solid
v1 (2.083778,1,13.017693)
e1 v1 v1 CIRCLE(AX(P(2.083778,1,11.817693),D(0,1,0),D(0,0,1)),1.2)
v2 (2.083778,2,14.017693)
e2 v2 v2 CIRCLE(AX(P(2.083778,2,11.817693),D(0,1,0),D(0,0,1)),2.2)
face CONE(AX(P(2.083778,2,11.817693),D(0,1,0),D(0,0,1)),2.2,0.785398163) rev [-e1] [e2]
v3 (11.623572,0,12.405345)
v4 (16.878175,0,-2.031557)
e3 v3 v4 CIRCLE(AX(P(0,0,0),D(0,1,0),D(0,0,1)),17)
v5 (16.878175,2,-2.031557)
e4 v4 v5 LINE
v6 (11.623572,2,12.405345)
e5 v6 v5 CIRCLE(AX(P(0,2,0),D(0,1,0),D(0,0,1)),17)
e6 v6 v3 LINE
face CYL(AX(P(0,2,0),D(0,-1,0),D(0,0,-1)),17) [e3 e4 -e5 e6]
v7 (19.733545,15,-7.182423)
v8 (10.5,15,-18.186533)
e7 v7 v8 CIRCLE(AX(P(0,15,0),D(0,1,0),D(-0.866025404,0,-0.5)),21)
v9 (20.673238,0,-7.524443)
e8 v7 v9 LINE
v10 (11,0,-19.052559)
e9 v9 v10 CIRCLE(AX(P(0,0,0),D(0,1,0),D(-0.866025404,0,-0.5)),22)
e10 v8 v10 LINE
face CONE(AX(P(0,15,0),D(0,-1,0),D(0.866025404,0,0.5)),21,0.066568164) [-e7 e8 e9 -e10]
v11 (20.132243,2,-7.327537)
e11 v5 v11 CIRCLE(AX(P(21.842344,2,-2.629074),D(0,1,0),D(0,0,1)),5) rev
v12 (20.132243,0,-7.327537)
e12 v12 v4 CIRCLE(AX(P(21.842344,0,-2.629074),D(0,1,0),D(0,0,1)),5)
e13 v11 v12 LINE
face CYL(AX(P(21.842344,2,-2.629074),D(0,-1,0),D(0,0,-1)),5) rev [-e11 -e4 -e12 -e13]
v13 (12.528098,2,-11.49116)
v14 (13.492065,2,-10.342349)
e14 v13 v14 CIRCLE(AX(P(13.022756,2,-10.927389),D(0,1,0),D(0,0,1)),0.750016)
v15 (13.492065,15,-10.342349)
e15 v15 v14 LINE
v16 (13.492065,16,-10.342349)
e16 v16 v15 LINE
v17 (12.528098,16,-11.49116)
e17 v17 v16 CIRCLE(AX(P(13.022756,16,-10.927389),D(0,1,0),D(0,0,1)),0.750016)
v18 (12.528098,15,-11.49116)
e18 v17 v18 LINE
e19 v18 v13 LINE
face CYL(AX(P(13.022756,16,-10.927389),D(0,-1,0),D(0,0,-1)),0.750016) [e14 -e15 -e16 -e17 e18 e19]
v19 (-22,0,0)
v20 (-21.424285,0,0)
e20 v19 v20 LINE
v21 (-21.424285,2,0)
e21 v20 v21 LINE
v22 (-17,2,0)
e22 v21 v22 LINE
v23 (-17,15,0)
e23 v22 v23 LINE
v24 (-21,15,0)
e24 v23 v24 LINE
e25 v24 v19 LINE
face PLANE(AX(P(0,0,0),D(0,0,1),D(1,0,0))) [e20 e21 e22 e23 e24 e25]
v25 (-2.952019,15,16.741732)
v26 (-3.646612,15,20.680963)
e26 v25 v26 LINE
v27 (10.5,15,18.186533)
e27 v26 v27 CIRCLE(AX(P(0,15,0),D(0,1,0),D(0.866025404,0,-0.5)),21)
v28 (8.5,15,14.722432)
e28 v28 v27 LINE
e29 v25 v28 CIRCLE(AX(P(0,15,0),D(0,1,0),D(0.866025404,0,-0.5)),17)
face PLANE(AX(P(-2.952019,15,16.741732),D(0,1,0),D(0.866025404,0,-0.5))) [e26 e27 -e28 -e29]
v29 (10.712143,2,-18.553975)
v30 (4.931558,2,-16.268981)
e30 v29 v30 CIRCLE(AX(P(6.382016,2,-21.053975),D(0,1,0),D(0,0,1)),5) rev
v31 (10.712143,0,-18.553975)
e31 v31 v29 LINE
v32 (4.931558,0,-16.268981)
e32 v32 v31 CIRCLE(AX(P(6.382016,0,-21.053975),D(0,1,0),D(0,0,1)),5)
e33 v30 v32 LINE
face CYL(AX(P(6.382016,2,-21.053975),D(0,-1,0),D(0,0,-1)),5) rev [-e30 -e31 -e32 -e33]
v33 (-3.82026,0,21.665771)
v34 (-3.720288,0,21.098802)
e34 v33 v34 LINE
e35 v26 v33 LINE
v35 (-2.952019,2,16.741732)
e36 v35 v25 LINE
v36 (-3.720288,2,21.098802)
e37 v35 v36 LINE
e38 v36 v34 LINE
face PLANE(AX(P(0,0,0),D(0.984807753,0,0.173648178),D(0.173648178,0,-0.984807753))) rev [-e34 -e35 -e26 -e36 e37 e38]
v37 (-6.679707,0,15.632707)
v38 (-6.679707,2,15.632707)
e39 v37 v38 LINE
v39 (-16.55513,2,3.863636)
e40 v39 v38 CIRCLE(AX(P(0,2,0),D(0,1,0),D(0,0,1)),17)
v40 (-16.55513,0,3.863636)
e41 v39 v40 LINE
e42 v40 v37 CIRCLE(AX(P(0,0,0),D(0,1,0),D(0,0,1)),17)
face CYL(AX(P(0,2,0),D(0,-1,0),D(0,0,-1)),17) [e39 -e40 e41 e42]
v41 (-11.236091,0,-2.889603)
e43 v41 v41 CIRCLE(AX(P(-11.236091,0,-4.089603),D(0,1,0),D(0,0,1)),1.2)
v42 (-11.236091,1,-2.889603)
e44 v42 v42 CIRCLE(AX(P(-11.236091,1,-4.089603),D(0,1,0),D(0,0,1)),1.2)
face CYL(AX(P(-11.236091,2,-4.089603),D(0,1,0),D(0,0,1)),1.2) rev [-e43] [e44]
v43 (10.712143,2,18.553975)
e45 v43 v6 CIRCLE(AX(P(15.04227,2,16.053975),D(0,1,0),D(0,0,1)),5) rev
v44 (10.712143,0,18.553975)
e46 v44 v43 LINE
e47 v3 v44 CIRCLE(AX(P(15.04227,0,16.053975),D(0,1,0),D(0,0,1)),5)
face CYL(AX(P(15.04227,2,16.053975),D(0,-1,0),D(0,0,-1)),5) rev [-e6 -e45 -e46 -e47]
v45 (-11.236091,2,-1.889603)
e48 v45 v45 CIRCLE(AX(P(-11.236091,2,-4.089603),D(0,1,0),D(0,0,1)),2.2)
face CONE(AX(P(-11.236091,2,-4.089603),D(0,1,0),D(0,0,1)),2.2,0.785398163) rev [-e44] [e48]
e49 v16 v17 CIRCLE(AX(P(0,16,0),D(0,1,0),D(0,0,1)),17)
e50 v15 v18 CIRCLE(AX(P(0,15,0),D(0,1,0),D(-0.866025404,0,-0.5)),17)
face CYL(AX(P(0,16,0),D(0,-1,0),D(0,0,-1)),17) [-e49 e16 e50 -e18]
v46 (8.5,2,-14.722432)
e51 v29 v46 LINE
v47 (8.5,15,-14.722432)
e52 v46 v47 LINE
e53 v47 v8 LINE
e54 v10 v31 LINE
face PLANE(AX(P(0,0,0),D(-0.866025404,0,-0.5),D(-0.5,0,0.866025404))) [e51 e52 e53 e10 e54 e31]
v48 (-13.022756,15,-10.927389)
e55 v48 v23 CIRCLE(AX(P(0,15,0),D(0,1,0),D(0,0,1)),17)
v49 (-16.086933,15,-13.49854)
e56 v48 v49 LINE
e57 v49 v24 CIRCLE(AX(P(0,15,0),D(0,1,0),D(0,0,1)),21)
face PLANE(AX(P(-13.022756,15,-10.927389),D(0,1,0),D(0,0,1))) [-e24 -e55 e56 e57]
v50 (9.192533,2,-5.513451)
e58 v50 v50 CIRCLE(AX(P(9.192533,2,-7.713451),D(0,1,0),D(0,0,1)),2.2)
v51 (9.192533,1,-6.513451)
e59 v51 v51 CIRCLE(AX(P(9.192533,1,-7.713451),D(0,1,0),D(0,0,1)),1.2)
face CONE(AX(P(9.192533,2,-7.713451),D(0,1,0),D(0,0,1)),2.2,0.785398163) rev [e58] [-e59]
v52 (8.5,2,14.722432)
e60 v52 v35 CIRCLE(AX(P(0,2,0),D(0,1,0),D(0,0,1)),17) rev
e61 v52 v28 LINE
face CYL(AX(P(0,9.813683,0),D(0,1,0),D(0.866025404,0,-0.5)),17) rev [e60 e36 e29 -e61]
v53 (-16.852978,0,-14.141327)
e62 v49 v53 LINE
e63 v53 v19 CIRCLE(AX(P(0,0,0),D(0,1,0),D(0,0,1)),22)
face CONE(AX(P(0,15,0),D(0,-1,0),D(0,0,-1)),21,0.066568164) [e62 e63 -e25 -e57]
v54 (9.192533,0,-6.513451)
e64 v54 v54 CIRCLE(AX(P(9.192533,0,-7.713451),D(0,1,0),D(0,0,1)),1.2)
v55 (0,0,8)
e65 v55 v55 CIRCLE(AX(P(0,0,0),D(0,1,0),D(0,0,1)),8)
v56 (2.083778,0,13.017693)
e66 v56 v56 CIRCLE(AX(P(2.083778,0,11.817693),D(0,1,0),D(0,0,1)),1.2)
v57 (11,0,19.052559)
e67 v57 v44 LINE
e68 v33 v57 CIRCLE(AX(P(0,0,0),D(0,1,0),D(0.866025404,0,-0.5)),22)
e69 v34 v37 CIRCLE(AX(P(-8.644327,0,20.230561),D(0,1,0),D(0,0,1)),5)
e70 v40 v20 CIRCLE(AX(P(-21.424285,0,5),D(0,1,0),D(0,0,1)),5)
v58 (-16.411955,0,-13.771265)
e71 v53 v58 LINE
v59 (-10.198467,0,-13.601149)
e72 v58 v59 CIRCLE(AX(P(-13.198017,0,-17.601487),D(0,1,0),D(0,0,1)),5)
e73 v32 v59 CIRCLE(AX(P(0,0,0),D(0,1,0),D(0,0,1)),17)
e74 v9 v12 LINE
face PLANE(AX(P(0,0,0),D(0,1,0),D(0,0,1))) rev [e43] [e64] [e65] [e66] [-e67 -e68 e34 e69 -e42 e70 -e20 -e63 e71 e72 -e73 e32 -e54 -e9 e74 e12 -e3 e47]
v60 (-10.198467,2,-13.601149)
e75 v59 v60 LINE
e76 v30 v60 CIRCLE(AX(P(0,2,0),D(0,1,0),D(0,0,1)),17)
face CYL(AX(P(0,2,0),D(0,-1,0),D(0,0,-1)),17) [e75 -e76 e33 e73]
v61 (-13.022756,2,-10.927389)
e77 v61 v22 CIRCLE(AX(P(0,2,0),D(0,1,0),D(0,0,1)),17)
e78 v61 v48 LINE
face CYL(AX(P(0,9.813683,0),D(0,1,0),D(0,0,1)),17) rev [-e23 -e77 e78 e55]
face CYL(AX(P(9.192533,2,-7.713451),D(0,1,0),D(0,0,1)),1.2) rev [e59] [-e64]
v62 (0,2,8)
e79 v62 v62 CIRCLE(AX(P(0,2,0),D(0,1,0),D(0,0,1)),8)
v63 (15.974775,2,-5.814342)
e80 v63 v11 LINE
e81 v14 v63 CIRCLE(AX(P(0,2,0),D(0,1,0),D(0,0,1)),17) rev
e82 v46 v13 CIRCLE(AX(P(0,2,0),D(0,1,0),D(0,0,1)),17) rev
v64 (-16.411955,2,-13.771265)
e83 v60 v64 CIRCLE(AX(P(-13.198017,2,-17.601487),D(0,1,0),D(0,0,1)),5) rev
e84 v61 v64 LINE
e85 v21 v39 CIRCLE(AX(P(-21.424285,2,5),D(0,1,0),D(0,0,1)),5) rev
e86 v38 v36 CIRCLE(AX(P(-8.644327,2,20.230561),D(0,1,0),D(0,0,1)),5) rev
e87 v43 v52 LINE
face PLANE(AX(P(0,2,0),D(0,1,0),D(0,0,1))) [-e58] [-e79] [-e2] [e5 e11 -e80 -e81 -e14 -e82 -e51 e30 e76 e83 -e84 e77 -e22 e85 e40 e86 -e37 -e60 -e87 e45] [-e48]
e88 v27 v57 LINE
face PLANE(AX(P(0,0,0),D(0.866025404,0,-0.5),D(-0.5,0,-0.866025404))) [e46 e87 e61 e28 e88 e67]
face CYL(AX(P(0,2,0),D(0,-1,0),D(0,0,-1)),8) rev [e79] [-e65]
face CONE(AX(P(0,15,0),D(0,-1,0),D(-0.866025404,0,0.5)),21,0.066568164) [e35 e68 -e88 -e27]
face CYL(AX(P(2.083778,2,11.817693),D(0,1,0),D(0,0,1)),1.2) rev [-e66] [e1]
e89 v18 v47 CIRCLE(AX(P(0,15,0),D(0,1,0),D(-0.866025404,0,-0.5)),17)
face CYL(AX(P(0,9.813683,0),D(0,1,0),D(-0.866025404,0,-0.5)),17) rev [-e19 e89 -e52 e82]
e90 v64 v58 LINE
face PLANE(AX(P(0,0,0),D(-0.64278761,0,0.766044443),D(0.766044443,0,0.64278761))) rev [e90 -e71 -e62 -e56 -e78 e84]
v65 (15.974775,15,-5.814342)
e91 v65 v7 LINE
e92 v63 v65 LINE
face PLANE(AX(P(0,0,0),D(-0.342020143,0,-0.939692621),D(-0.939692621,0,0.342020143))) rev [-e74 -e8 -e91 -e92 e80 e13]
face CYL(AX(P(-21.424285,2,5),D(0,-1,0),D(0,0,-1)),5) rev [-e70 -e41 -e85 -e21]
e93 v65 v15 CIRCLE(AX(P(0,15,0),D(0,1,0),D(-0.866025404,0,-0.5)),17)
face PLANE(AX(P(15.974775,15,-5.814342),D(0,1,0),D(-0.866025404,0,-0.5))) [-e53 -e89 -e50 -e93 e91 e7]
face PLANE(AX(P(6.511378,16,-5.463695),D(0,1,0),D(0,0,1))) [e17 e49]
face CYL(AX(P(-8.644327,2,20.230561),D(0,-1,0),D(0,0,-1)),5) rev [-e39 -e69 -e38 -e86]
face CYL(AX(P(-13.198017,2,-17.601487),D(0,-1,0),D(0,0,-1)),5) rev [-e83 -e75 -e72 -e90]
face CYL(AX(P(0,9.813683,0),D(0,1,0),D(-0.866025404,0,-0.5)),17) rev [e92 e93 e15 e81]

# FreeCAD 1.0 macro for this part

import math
import FreeCAD as App
import Part
import Sketcher

V = App.Vector
Q = App.Units.Quantity


def edges_at(feature, points):
    """Names of the edges that pass closest to the given points."""
    edges = feature.Shape.Edges
    near = lambda p: min(range(len(edges)), key=lambda i: edges[i].distToShape(Part.Vertex(*p))[0])
    return sorted({f"Edge{near(p) + 1}" for p in points})

doc = App.newDocument("Part")
body = doc.addObject("PartDesign::Body", "Body")

sketch1 = body.newObject("Sketcher::SketchObject", "Sketch")
sketch1.AttachmentSupport = (doc.getObject("XZ_Plane"), [""])
sketch1.MapMode = "FlatFace"
sketch1.addGeometry(Part.Circle(V(0, 0, 0), V(0, 0, 1), 17), False)
sketch1.addGeometry(Part.Circle(V(0, 0, 0), V(0, 0, 1), 8), False)
sketch1.addConstraint(Sketcher.Constraint("Coincident", 0, 3, -1, 1))
sketch1.addConstraint(Sketcher.Constraint("Coincident", 1, 3, -1, 1))
sketch1.addConstraint(Sketcher.Constraint("Diameter", 0, 34.0))
sketch1.addConstraint(Sketcher.Constraint("Diameter", 1, 16.0))
pad1 = body.newObject("PartDesign::Pad", "Pad")
pad1.Profile = sketch1
pad1.Length = 2
pad1.Reversed = True

sketch2 = body.newObject("Sketcher::SketchObject", "Sketch001")
sketch2.AttachmentSupport = (doc.getObject("XY_Plane"), [""])
sketch2.MapMode = "FlatFace"
sketch2.addGeometry(Part.LineSegment(V(-22, 0, 0), V(-17, 0, 0)), False)
sketch2.addGeometry(Part.LineSegment(V(-17, 0, 0), V(-17, 15, 0)), False)
sketch2.addGeometry(Part.LineSegment(V(-17, 15, 0), V(-21, 15, 0)), False)
sketch2.addGeometry(Part.LineSegment(V(-21, 15, 0), V(-22, 0, 0)), False)
sketch2.addConstraint(Sketcher.Constraint("Coincident", 0, 2, 1, 1))
sketch2.addConstraint(Sketcher.Constraint("Coincident", 1, 2, 2, 1))
sketch2.addConstraint(Sketcher.Constraint("Coincident", 2, 2, 3, 1))
sketch2.addConstraint(Sketcher.Constraint("Coincident", 3, 2, 0, 1))
sketch2.addConstraint(Sketcher.Constraint("Horizontal", 0))
sketch2.addConstraint(Sketcher.Constraint("Vertical", 1))
sketch2.addConstraint(Sketcher.Constraint("Horizontal", 2))
sketch2.addConstraint(Sketcher.Constraint("PointOnObject", 0, 2, -1))
sketch2.addConstraint(Sketcher.Constraint("DistanceX", 0, 1, 0, 2, 5.0))
sketch2.addConstraint(Sketcher.Constraint("DistanceX", 2, 2, 2, 1, 4.0))
sketch2.addConstraint(Sketcher.Constraint("DistanceY", 1, 1, 1, 2, 15.0))
sketch2.addConstraint(Sketcher.Constraint("DistanceX", 0, 2, -1, 1, 17.0))
revolution = body.newObject("PartDesign::Revolution", "Revolution")
revolution.Profile = sketch2
revolution.ReferenceAxis = (sketch2, ["V_Axis"])
revolution.Angle = 40
revolution.Reversed = True
doc.recompute()

polarpattern = body.newObject("PartDesign::PolarPattern", "PolarPattern")
polarpattern.Originals = [revolution]
polarpattern.Axis = (doc.getObject("Y_Axis"), [""])
polarpattern.Angle = 360
polarpattern.Occurrences = 3
body.Tip = polarpattern
doc.recompute()

fillet = body.newObject("PartDesign::Fillet", "Fillet")
fillet.Base = (polarpattern, edges_at(polarpattern, [
    (-13.023, 1, -10.927),
    (-17, 1, 0),
    (-2.952, 1, 16.742),
    (8.5, 1, 14.722),
    (15.975, 1, -5.814),
    (8.5, 1, -14.722),
]))
fillet.Radius = 5

sketch3 = body.newObject("Sketcher::SketchObject", "Sketch002")
sketch3.AttachmentSupport = (doc.getObject("YZ_Plane"), [""])
sketch3.MapMode = "FlatFace"
sketch3.AttachmentOffset = App.Placement(V(0, 0, 2.083778), App.Rotation())
sketch3.addGeometry(Part.LineSegment(V(0, 11.817693, 0), V(2, 11.817693, 0)), False)
sketch3.addGeometry(Part.LineSegment(V(2, 11.817693, 0), V(2, 14.017693, 0)), False)
sketch3.addGeometry(Part.LineSegment(V(2, 14.017693, 0), V(1, 13.017693, 0)), False)
sketch3.addGeometry(Part.LineSegment(V(1, 13.017693, 0), V(0, 13.017693, 0)), False)
sketch3.addGeometry(Part.LineSegment(V(0, 13.017693, 0), V(0, 11.817693, 0)), False)
sketch3.addGeometry(Part.LineSegment(V(2, 11.817693, 0), V(0, 11.817693, 0)), True)
sketch3.addConstraint(Sketcher.Constraint("Coincident", 0, 2, 1, 1))
sketch3.addConstraint(Sketcher.Constraint("Coincident", 1, 2, 2, 1))
sketch3.addConstraint(Sketcher.Constraint("Coincident", 2, 2, 3, 1))
sketch3.addConstraint(Sketcher.Constraint("Coincident", 3, 2, 4, 1))
sketch3.addConstraint(Sketcher.Constraint("Coincident", 4, 2, 0, 1))
sketch3.addConstraint(Sketcher.Constraint("Horizontal", 0))
sketch3.addConstraint(Sketcher.Constraint("Vertical", 1))
sketch3.addConstraint(Sketcher.Constraint("Horizontal", 3))
sketch3.addConstraint(Sketcher.Constraint("Vertical", 4))
sketch3.addConstraint(Sketcher.Constraint("Horizontal", 5))
sketch3.addConstraint(Sketcher.Constraint("Coincident", 5, 1, 0, 2))
sketch3.addConstraint(Sketcher.Constraint("PointOnObject", 3, 2, -2))
sketch3.addConstraint(Sketcher.Constraint("PointOnObject", 5, 2, -2))
sketch3.addConstraint(Sketcher.Constraint("DistanceX", 0, 1, 0, 2, 2.0))
sketch3.addConstraint(Sketcher.Constraint("DistanceX", 3, 2, 3, 1, 1.0))
sketch3.addConstraint(Sketcher.Constraint("Angle", 2, Q("-135 deg")))
sketch3.addConstraint(Sketcher.Constraint("DistanceY", 1, 1, 1, 2, 2.2))
sketch3.addConstraint(Sketcher.Constraint("DistanceY", -1, 1, 0, 2, 11.817693))
groove = body.newObject("PartDesign::Groove", "Groove")
groove.Profile = sketch3
groove.ReferenceAxis = (sketch3, ["Axis0"])
groove.Angle = 360
doc.recompute()

datumline = body.newObject("PartDesign::Line", "DatumLine")
datumline.Placement = App.Placement(V(0, 0, 0), App.Rotation(V(0, 0, 1), V(0.342020143, 0, -0.939692621)))
linearpattern = body.newObject("PartDesign::LinearPattern", "LinearPattern")
linearpattern.Originals = [groove]
linearpattern.Direction = (datumline, [""])
linearpattern.Mode = "offset"
linearpattern.Offset = 20.78461
linearpattern.Occurrences = 2
body.Tip = linearpattern
doc.recompute()

datumline2 = body.newObject("PartDesign::Line", "DatumLine001")
datumline2.Placement = App.Placement(V(0, 0, 0), App.Rotation(V(0, 0, 1), V(-0.641997109, 0, -0.766707058)))
linearpattern2 = body.newObject("PartDesign::LinearPattern", "LinearPattern001")
linearpattern2.Originals = [groove]
linearpattern2.Direction = (datumline2, [""])
linearpattern2.Mode = "offset"
linearpattern2.Offset = 20.747554
linearpattern2.Occurrences = 2
body.Tip = linearpattern2

sketch4 = body.newObject("Sketcher::SketchObject", "Sketch003")
sketch4.AttachmentSupport = (doc.getObject("XZ_Plane"), [""])
sketch4.MapMode = "FlatFace"
sketch4.AttachmentOffset = App.Placement(V(0, 0, -2), App.Rotation())
sketch4.addGeometry(Part.ArcOfCircle(Part.Circle(V(13.022756, -10.927389, 0), V(0, 0, 1), 0.750016), math.radians(51.264007), math.radians(228.735993)), False)
sketch4.addGeometry(Part.ArcOfCircle(Part.Circle(V(0, 0, 0), V(0, 0, 1), 17), math.radians(-42.528014), math.radians(-37.471986)), False)
sketch4.addConstraint(Sketcher.Constraint("Coincident", 0, 1, 1, 2))
sketch4.addConstraint(Sketcher.Constraint("Coincident", 1, 1, 0, 2))
sketch4.addConstraint(Sketcher.Constraint("Coincident", 1, 3, -1, 1))
sketch4.addConstraint(Sketcher.Constraint("Radius", 1, 17.0))
sketch4.addConstraint(Sketcher.Constraint("Radius", 0, 0.750016))
sketch4.addConstraint(Sketcher.Constraint("DistanceY", 0, 3, -1, 1, 10.927389))
sketch4.addConstraint(Sketcher.Constraint("DistanceY", 0, 1, -1, 1, 10.342349))
pad2 = body.newObject("PartDesign::Pad", "Pad001")
pad2.Profile = sketch4
pad2.Length = 14
pad2.Reversed = True

doc.recompute()
